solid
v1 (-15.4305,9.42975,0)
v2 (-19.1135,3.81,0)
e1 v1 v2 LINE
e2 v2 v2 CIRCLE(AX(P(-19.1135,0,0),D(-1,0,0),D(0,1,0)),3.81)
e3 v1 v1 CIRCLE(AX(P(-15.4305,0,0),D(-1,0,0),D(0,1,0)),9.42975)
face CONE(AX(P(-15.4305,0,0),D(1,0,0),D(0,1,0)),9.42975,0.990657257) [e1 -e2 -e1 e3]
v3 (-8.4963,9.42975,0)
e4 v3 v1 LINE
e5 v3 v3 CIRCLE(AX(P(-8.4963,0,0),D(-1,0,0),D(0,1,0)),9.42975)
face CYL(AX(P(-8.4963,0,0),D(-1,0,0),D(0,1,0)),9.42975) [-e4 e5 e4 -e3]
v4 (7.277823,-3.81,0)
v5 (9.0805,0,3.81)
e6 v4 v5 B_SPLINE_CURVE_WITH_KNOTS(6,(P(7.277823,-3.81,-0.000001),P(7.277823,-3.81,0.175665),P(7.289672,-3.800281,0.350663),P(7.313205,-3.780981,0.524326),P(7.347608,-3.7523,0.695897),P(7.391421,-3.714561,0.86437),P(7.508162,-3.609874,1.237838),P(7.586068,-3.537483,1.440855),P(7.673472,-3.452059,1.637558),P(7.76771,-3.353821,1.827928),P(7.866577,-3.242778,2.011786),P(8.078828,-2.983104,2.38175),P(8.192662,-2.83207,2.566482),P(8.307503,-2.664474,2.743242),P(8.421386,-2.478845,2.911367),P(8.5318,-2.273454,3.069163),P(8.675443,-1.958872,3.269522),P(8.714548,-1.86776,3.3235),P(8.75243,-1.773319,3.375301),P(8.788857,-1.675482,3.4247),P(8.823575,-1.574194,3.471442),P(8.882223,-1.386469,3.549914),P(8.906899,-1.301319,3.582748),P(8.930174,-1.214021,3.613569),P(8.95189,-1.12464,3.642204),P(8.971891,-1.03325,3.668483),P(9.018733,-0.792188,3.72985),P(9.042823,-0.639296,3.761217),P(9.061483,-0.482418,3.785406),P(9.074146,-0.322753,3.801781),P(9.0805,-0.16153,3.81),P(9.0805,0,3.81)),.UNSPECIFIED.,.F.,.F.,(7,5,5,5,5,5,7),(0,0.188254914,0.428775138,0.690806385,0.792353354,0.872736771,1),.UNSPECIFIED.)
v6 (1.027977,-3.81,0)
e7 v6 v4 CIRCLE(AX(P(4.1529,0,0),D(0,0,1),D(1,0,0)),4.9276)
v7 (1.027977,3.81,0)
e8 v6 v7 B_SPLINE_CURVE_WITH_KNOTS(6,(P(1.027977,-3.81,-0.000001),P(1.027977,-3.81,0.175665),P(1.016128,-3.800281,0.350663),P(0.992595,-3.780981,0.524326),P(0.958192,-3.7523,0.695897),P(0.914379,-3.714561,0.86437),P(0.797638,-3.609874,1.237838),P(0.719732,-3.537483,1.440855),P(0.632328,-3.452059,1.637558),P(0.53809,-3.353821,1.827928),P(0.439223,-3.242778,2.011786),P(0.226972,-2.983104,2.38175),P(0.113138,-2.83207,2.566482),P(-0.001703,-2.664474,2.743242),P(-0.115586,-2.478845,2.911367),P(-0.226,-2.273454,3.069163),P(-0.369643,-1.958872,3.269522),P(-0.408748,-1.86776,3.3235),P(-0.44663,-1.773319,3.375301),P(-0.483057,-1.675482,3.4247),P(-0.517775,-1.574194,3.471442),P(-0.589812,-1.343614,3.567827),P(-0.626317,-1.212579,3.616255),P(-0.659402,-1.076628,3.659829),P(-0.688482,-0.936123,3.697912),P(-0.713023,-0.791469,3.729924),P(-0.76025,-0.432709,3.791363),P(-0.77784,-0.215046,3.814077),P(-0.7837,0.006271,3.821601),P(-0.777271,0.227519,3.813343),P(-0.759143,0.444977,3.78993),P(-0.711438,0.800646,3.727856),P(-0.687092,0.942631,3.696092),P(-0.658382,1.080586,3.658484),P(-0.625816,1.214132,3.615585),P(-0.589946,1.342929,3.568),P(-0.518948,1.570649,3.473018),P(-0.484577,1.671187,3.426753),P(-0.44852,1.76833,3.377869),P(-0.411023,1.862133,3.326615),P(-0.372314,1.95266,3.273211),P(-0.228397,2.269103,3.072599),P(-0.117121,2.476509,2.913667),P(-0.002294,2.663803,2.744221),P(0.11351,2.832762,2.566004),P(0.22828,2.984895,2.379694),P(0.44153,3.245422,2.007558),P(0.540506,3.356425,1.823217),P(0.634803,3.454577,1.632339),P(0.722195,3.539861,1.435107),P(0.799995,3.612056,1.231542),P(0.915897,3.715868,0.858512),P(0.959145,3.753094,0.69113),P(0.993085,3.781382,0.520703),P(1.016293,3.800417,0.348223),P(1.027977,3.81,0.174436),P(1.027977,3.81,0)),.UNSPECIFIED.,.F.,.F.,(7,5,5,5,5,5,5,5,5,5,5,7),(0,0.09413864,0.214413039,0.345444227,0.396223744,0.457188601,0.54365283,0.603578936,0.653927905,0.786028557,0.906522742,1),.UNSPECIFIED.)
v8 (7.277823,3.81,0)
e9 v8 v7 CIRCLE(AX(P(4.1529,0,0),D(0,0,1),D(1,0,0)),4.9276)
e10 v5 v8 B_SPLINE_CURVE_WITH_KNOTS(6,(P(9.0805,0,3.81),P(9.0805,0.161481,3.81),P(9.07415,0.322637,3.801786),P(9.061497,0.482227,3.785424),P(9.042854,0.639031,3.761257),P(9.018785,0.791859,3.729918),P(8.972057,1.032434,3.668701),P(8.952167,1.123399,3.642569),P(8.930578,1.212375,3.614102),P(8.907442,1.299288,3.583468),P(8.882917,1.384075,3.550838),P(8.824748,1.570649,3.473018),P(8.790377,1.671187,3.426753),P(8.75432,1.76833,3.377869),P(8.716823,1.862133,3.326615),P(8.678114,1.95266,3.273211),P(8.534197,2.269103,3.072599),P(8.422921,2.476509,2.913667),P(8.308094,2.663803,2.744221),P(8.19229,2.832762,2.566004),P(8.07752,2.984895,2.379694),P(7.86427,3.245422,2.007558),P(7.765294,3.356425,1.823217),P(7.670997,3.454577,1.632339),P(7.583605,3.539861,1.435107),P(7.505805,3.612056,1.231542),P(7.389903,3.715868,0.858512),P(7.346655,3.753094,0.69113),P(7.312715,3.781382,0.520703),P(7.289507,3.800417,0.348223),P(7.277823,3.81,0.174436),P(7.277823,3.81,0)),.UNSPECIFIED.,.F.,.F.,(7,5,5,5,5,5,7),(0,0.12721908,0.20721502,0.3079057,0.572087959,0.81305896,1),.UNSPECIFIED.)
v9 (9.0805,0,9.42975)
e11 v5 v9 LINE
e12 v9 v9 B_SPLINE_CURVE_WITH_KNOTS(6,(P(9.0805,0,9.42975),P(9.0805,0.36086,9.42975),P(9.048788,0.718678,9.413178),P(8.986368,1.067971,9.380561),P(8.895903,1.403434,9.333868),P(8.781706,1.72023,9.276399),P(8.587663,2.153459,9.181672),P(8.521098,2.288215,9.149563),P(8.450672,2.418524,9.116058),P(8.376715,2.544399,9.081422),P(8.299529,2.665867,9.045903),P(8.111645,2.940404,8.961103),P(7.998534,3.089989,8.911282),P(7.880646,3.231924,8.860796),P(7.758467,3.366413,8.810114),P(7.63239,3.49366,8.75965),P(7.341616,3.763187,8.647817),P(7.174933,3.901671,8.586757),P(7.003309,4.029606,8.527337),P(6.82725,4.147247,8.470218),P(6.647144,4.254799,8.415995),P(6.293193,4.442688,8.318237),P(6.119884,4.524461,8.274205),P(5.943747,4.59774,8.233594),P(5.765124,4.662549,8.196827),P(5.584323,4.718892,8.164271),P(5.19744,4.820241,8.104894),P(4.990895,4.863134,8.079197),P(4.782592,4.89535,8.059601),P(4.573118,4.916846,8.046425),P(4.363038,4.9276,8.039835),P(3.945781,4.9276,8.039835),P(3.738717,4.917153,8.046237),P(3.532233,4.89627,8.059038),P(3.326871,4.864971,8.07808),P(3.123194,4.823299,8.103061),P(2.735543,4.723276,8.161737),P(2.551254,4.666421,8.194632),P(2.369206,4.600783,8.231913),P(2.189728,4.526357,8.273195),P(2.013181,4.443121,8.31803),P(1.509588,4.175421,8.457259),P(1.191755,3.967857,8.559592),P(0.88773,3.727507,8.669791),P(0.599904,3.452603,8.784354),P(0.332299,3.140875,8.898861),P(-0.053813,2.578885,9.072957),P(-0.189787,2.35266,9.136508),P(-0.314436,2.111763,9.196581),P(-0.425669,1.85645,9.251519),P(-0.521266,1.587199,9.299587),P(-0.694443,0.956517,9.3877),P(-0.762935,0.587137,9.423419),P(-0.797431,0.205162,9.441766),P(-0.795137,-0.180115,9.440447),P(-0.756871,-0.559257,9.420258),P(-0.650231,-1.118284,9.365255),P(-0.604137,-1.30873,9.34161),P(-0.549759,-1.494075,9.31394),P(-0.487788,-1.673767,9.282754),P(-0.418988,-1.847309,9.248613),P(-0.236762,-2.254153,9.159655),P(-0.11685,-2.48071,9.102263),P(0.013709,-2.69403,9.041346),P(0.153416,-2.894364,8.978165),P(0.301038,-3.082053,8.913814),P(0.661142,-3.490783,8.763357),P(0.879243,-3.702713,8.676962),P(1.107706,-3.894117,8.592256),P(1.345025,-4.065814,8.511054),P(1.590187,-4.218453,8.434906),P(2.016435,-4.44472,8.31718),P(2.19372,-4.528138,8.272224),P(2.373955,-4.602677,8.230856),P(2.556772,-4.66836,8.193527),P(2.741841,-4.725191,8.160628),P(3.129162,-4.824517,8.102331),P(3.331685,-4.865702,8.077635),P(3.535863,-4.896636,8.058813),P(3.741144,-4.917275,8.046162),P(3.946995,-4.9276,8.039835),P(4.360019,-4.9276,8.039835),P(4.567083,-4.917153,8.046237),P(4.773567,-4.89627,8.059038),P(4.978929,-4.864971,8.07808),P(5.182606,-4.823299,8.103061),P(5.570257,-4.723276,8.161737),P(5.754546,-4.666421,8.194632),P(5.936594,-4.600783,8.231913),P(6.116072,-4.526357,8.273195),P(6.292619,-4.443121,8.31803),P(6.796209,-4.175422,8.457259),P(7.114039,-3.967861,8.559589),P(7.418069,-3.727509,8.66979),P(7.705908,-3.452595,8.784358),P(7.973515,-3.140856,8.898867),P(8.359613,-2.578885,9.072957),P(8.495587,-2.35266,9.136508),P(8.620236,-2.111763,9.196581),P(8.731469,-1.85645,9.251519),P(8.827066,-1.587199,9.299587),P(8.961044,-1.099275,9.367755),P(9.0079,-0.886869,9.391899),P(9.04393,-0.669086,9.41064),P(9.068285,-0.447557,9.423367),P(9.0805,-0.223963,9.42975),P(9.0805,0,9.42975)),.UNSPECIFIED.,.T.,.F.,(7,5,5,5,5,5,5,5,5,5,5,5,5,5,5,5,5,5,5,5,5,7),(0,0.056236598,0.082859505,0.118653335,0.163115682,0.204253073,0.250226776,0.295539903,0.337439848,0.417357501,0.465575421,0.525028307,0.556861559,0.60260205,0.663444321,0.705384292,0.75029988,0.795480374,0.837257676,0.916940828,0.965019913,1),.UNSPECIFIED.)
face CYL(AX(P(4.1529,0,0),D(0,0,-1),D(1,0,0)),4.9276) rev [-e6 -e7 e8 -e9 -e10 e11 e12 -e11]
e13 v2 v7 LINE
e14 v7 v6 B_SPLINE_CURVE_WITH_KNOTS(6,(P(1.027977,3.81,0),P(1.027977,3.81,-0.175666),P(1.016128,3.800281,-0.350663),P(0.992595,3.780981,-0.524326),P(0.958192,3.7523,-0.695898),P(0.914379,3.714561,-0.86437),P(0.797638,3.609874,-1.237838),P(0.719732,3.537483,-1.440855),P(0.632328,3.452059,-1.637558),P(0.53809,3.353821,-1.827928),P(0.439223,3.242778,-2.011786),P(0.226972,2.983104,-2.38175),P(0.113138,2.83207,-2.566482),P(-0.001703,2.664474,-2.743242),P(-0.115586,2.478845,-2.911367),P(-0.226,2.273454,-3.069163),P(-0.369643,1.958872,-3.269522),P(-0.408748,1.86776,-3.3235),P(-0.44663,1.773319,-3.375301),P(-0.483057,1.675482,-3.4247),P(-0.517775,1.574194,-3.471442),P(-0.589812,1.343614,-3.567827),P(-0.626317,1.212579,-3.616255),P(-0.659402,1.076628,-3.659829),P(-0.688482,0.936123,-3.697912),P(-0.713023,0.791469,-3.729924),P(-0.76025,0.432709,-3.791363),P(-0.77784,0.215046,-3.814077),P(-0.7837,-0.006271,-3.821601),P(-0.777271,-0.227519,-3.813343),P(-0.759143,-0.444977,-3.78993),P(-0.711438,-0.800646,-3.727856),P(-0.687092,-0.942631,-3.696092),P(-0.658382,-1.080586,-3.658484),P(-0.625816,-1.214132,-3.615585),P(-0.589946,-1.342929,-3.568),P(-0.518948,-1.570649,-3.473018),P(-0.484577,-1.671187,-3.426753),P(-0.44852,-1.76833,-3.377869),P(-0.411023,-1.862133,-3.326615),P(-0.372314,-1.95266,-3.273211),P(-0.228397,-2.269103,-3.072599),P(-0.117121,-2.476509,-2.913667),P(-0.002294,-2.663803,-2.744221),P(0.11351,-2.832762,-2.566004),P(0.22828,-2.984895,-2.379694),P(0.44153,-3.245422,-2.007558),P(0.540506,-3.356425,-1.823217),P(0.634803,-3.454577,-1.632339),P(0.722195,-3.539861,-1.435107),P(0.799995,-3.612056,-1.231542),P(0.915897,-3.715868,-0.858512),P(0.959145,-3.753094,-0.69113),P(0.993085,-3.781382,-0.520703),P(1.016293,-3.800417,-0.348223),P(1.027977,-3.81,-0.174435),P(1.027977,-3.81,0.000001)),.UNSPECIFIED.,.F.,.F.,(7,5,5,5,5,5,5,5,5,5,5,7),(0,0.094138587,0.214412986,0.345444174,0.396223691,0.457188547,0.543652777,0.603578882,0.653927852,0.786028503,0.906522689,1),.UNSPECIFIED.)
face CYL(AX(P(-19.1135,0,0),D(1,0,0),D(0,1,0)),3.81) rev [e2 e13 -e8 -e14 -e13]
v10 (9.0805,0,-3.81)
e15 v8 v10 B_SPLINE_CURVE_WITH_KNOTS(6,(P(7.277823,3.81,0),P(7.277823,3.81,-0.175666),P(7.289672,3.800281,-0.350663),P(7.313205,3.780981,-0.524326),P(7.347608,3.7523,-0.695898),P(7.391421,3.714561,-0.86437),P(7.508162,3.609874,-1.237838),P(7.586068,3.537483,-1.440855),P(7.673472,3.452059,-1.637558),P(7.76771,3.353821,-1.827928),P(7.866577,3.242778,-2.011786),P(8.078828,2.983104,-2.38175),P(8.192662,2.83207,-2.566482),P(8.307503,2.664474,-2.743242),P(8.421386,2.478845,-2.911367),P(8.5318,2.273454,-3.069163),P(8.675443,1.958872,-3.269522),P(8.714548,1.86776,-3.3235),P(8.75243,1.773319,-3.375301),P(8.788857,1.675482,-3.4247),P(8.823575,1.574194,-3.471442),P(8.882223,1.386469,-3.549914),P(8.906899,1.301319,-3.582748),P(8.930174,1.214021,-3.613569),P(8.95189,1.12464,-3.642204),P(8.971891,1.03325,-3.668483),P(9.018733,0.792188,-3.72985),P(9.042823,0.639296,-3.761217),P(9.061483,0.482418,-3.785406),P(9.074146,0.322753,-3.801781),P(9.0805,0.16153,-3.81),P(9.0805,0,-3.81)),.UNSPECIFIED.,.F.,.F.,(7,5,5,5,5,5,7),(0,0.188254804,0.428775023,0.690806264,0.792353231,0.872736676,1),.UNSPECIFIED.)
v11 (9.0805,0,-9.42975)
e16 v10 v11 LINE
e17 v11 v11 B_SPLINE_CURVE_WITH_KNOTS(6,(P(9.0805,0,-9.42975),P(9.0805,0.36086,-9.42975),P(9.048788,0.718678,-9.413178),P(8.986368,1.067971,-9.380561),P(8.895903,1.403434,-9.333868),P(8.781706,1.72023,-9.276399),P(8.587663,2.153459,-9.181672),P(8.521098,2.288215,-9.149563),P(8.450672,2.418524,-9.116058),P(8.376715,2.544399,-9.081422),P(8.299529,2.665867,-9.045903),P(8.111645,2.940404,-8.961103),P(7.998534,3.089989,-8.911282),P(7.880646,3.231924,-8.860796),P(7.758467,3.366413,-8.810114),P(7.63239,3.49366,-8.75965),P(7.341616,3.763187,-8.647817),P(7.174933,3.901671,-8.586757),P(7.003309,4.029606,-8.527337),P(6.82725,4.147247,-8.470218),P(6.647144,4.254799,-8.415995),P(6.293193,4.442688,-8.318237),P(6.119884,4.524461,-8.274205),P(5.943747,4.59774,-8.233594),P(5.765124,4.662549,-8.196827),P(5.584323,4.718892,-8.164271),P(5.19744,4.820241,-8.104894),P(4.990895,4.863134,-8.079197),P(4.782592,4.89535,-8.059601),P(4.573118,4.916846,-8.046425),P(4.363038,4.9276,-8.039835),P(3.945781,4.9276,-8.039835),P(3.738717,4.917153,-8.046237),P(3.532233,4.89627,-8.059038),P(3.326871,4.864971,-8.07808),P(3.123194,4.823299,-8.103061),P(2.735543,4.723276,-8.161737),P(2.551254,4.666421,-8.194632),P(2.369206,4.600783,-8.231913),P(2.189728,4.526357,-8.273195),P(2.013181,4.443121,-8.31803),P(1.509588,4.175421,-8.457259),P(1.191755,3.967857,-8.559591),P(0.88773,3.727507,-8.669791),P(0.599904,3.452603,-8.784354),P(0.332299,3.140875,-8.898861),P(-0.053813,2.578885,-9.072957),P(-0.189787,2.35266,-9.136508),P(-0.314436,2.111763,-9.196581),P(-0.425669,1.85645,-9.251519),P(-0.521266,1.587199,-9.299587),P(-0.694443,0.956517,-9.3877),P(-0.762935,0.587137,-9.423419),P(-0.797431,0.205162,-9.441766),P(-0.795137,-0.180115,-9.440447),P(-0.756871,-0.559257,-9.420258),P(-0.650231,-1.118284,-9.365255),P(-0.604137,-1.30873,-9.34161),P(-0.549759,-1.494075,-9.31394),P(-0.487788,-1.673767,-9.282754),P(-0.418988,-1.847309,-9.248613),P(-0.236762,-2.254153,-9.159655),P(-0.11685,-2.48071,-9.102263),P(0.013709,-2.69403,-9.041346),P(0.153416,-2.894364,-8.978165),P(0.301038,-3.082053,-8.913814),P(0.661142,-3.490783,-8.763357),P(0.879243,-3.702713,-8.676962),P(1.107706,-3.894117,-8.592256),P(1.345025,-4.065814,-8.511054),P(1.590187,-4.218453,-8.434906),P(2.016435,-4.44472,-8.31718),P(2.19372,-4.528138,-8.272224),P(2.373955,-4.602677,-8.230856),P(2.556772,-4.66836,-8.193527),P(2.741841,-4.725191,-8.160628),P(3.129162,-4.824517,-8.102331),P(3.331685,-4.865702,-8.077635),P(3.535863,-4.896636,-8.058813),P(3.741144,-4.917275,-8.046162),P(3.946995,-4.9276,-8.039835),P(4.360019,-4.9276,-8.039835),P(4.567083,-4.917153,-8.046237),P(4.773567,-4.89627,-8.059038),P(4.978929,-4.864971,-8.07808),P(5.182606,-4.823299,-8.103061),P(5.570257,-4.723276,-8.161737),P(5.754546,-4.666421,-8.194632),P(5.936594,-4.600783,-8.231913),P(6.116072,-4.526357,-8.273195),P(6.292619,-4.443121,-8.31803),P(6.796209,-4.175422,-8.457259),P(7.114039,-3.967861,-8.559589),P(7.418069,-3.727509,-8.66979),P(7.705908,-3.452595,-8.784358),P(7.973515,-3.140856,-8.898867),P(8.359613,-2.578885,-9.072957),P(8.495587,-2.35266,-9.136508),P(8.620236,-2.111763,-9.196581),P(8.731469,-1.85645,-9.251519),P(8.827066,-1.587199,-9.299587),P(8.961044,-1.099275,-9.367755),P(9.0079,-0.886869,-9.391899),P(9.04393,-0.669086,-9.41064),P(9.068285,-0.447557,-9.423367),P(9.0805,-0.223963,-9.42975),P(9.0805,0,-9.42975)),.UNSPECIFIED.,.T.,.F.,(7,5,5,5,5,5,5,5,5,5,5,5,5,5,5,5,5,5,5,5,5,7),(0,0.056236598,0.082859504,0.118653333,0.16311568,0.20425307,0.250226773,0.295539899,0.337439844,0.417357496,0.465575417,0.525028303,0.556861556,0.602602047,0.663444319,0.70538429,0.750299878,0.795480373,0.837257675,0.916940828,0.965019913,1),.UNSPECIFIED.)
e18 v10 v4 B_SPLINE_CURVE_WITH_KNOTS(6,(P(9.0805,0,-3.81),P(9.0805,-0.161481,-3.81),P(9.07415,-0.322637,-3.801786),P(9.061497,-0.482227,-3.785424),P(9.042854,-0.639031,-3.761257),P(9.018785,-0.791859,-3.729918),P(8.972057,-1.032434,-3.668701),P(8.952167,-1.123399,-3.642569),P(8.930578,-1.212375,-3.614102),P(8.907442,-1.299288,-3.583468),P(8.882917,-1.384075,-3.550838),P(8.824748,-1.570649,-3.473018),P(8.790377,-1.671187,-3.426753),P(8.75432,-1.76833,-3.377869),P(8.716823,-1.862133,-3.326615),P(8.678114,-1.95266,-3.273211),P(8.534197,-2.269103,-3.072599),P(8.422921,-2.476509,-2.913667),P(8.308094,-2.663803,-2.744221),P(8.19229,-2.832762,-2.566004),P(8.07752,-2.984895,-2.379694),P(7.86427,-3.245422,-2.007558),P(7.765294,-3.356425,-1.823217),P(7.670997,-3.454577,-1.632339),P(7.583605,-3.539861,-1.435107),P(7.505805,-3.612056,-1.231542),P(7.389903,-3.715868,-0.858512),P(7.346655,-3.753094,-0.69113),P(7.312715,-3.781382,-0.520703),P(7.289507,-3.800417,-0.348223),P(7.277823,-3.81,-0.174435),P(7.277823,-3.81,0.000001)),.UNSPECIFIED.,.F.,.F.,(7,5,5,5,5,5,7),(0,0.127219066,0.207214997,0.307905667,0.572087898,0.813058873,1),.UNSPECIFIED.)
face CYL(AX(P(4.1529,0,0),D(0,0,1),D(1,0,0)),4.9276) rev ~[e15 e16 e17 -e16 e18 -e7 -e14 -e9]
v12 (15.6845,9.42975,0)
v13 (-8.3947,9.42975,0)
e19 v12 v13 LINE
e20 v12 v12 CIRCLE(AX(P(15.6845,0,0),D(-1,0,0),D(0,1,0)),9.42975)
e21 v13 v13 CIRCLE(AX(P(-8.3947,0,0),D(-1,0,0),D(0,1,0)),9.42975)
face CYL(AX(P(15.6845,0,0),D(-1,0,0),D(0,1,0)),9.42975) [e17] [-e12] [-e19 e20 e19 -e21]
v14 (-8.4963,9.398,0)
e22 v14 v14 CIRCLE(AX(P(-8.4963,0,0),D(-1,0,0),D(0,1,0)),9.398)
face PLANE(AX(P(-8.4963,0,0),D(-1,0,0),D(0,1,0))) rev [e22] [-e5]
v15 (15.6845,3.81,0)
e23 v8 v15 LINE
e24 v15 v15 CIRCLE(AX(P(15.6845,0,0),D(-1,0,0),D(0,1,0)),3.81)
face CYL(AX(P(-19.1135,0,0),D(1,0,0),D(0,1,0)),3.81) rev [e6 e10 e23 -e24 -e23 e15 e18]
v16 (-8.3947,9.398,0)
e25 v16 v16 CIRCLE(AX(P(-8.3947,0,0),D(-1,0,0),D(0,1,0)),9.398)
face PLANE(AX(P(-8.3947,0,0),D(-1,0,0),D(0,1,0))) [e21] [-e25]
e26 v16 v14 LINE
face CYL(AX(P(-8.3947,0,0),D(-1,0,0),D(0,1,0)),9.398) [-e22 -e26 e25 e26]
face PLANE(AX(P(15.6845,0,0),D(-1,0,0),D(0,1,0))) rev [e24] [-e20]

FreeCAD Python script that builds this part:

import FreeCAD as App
import Part
import Sketcher

V = App.Vector
Q = App.Units.Quantity

doc = App.newDocument("Part")
body = doc.addObject("PartDesign::Body", "Body")

# Sketch on XY plane
sketch1 = body.newObject("Sketcher::SketchObject", "Sketch")
sketch1.AttachmentSupport = (doc.getObject("XY_Plane"), [""])
sketch1.MapMode = "FlatFace"
sketch1.addGeometry([
    Part.LineSegment(V(15.684, 3.81, 0), V(15.684, 9.43, 0)),  # 0
    Part.LineSegment(V(15.684, 9.43, 0), V(-8.395, 9.43, 0)),  # 1
    Part.LineSegment(V(-8.395, 9.43, 0), V(-8.395, 9.398, 0)),  # 2
    Part.LineSegment(V(-8.395, 9.398, 0), V(-8.496, 9.398, 0)),  # 3
    Part.LineSegment(V(-8.496, 9.398, 0), V(-8.496, 9.43, 0)),  # 4
    Part.LineSegment(V(-8.496, 9.43, 0), V(-15.431, 9.43, 0)),  # 5
    Part.LineSegment(V(-15.431, 9.43, 0), V(-19.113, 3.81, 0)),  # 6
    Part.LineSegment(V(-19.113, 3.81, 0), V(15.684, 3.81, 0)),  # 7
], False)
sketch1.addConstraint([
    Sketcher.Constraint("Coincident", 0, 2, 1, 1),
    Sketcher.Constraint("Coincident", 1, 2, 2, 1),
    Sketcher.Constraint("Coincident", 2, 2, 3, 1),
    Sketcher.Constraint("Coincident", 3, 2, 4, 1),
    Sketcher.Constraint("Coincident", 4, 2, 5, 1),
    Sketcher.Constraint("Coincident", 5, 2, 6, 1),
    Sketcher.Constraint("Coincident", 6, 2, 7, 1),
    Sketcher.Constraint("Coincident", 7, 2, 0, 1),
    Sketcher.Constraint("Vertical", 0),
    Sketcher.Constraint("Horizontal", 1),
    Sketcher.Constraint("Vertical", 2),
    Sketcher.Constraint("Horizontal", 3),
    Sketcher.Constraint("Vertical", 4),
    Sketcher.Constraint("Horizontal", 5),
    Sketcher.Constraint("Horizontal", 7),
    Sketcher.Constraint("Horizontal", 1, 2, 4, 2),
    Sketcher.Constraint("DistanceX", 7, 1, 7, 2, Q("1.37 in")),
    Sketcher.Constraint("DistanceX", 1, 2, 1, 1, Q("0.948 in")),
    Sketcher.Constraint("DistanceX", 3, 2, 3, 1, Q("0.004 in")),
    Sketcher.Constraint("DistanceX", 5, 2, 5, 1, Q("0.273 in")),
    Sketcher.Constraint("DistanceY", -1, 1, 2, 2, Q("0.37 in")),
    Sketcher.Constraint("DistanceY", -1, 1, 6, 2, Q("0.15 in")),
    Sketcher.Constraint("DistanceX", -1, 1, 0, 2, Q("0.6175 in")),
    Sketcher.Constraint("DistanceY", 0, 1, 0, 2, Q("5.61975 mm")),
])
revolution = body.newObject("PartDesign::Revolution", "Revolution")
revolution.Profile = sketch1
revolution.ReferenceAxis = (sketch1, ["H_Axis"])
revolution.Angle = 360

# Sketch on XY plane
sketch2 = body.newObject("Sketcher::SketchObject", "Sketch001")
sketch2.AttachmentSupport = (doc.getObject("XY_Plane"), [""])
sketch2.MapMode = "FlatFace"
sketch2.addGeometry(Part.Circle(V(4.2, 0, 0), V(0, 0, 1), 4.9), False)
sketch2.addConstraint([
    Sketcher.Constraint("PointOnObject", 0, 3, -1),
    Sketcher.Constraint("Diameter", 0, Q("0.388 in")),
    Sketcher.Constraint("DistanceX", -1, 1, 0, 3, Q("0.1635 in")),
])
pocket1 = body.newObject("PartDesign::Pocket", "Pocket")
pocket1.Profile = sketch2
pocket1.Type = "ThroughAll"
pocket1.Midplane = True

doc.recompute()
